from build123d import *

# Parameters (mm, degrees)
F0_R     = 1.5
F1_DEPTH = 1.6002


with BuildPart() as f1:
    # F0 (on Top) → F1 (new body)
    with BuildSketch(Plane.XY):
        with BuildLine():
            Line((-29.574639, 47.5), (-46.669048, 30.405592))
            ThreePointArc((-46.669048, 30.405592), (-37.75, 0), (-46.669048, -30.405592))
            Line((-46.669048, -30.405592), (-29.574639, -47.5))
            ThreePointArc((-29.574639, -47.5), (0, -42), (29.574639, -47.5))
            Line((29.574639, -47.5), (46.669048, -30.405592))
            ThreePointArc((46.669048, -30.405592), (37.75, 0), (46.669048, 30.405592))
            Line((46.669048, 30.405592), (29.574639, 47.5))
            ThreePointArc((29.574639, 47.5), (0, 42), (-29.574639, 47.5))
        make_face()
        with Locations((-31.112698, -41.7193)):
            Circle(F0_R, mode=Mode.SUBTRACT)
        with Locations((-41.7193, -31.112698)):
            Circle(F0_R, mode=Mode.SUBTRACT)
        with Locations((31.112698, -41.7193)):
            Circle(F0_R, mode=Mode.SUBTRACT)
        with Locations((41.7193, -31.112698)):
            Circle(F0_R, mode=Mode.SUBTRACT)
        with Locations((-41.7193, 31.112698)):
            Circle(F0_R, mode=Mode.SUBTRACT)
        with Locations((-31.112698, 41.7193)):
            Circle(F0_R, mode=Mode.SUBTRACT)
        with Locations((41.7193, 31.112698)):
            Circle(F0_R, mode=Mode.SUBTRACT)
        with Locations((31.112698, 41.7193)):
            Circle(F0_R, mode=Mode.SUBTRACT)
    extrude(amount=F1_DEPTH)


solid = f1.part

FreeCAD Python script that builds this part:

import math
import FreeCAD as App
import Part
import Sketcher

V = App.Vector
Q = App.Units.Quantity

doc = App.newDocument("Part")
body = doc.addObject("PartDesign::Body", "Body")

sketch1 = body.newObject("Sketcher::SketchObject", "Sketch")
sketch1.AttachmentSupport = (doc.getObject("XY_Plane"), [""])
sketch1.MapMode = "FlatFace"
sketch1.addGeometry([
    Part.LineSegment(V(-29.6, 47.5, 0), V(-46.7, 30.4, 0)),
    Part.ArcOfCircle(Part.Circle(V(-94, 0, 0), V(0, 0, 1), 56.3), math.radians(-33), math.radians(33)),
    Part.LineSegment(V(-46.7, -30.4, 0), V(-29.6, -47.5, 0)),
    Part.ArcOfCircle(Part.Circle(V(0, -124.3, 0), V(0, 0, 1), 82.3), math.radians(69), math.radians(111)),
    Part.LineSegment(V(29.6, -47.5, 0), V(46.7, -30.4, 0)),
    Part.ArcOfCircle(Part.Circle(V(94, 0, 0), V(0, 0, 1), 56.3), math.radians(147), math.radians(213)),
    Part.LineSegment(V(46.7, 30.4, 0), V(29.6, 47.5, 0)),
    Part.ArcOfCircle(Part.Circle(V(0, 124.3, 0), V(0, 0, 1), 82.3), math.radians(-111), math.radians(-69)),
    Part.Circle(V(-31.1, -41.7, 0), V(0, 0, 1), 1.5),
    Part.Circle(V(-41.7, -31.1, 0), V(0, 0, 1), 1.5),
    Part.Circle(V(31.1, -41.7, 0), V(0, 0, 1), 1.5),
    Part.Circle(V(41.7, -31.1, 0), V(0, 0, 1), 1.5),
    Part.Circle(V(-41.7, 31.1, 0), V(0, 0, 1), 1.5),
    Part.Circle(V(-31.1, 41.7, 0), V(0, 0, 1), 1.5),
    Part.Circle(V(41.7, 31.1, 0), V(0, 0, 1), 1.5),
    Part.Circle(V(31.1, 41.7, 0), V(0, 0, 1), 1.5),
], False)
sketch1.addConstraint([
    Sketcher.Constraint("Coincident", 0, 2, 1, 2),
    Sketcher.Constraint("Coincident", 1, 1, 2, 1),
    Sketcher.Constraint("Coincident", 2, 2, 3, 2),
    Sketcher.Constraint("Coincident", 3, 1, 4, 1),
    Sketcher.Constraint("Coincident", 4, 2, 5, 2),
    Sketcher.Constraint("Coincident", 5, 1, 6, 1),
    Sketcher.Constraint("Coincident", 6, 2, 7, 2),
    Sketcher.Constraint("Coincident", 7, 1, 0, 1),
    Sketcher.Constraint("Equal", 1, 5),
    Sketcher.Constraint("Equal", 3, 7),
    Sketcher.Constraint("Equal", 8, 9),
    Sketcher.Constraint("Equal", 9, 10),
    Sketcher.Constraint("Equal", 10, 11),
    Sketcher.Constraint("Equal", 11, 12),
    Sketcher.Constraint("Equal", 12, 13),
    Sketcher.Constraint("Equal", 13, 14),
    Sketcher.Constraint("Equal", 14, 15),
    Sketcher.Constraint("Symmetric", 1, 3, 5, 3, -1, 1),
    Sketcher.Constraint("Symmetric", 3, 3, 7, 3, -1, 1),
    Sketcher.Constraint("Symmetric", 11, 3, 12, 3, -1, 1),
    Sketcher.Constraint("Symmetric", 10, 3, 13, 3, -1, 1),
    Sketcher.Constraint("Symmetric", 9, 3, 14, 3, -1, 1),
    Sketcher.Constraint("Symmetric", 8, 3, 15, 3, -1, 1),
    Sketcher.Constraint("Symmetric", 8, 3, 10, 3, -2),
    Sketcher.Constraint("Symmetric", 9, 3, 11, 3, -2),
    Sketcher.Constraint("Symmetric", 2, 2, 3, 1, -2),
    Sketcher.Constraint("Symmetric", 1, 1, 4, 2, -2),
    Sketcher.Constraint("Perpendicular", 0, 2),
    Sketcher.Constraint("Perpendicular", 2, 4),
    Sketcher.Constraint("Perpendicular", 4, 6),
    Sketcher.Constraint("Horizontal", 0, 2, 5, 1),
    Sketcher.Constraint("Vertical", 0, 2, 1, 1),
    Sketcher.Constraint("Diameter", 8, Q("3 mm")),
    Sketcher.Constraint("DistanceY", 2, 2, -1, 1, Q("47.5 mm")),
    Sketcher.Constraint("Radius", 3, Q("82.264479 mm")),
    Sketcher.Constraint("Radius", 1, Q("56.286806 mm")),
    Sketcher.Constraint("DistanceX", 9, 3, 10, 3, Q("72.831998 mm")),
    Sketcher.Constraint("DistanceY", 8, 3, 12, 3, Q("72.831998 mm")),
    Sketcher.Constraint("DistanceX", 8, 3, -1, 1, Q("31.112698 mm")),
    Sketcher.Constraint("DistanceY", 8, 3, -1, 1, Q("41.7193 mm")),
    Sketcher.Constraint("DistanceY", 3, 3, -1, 1, Q("124.264479 mm")),
    Sketcher.Constraint("DistanceY", -1, 1, 0, 2, Q("30.405592 mm")),
])
pad1 = body.newObject("PartDesign::Pad", "Pad")
pad1.Profile = sketch1
pad1.Length = 1.6002

doc.recompute()
